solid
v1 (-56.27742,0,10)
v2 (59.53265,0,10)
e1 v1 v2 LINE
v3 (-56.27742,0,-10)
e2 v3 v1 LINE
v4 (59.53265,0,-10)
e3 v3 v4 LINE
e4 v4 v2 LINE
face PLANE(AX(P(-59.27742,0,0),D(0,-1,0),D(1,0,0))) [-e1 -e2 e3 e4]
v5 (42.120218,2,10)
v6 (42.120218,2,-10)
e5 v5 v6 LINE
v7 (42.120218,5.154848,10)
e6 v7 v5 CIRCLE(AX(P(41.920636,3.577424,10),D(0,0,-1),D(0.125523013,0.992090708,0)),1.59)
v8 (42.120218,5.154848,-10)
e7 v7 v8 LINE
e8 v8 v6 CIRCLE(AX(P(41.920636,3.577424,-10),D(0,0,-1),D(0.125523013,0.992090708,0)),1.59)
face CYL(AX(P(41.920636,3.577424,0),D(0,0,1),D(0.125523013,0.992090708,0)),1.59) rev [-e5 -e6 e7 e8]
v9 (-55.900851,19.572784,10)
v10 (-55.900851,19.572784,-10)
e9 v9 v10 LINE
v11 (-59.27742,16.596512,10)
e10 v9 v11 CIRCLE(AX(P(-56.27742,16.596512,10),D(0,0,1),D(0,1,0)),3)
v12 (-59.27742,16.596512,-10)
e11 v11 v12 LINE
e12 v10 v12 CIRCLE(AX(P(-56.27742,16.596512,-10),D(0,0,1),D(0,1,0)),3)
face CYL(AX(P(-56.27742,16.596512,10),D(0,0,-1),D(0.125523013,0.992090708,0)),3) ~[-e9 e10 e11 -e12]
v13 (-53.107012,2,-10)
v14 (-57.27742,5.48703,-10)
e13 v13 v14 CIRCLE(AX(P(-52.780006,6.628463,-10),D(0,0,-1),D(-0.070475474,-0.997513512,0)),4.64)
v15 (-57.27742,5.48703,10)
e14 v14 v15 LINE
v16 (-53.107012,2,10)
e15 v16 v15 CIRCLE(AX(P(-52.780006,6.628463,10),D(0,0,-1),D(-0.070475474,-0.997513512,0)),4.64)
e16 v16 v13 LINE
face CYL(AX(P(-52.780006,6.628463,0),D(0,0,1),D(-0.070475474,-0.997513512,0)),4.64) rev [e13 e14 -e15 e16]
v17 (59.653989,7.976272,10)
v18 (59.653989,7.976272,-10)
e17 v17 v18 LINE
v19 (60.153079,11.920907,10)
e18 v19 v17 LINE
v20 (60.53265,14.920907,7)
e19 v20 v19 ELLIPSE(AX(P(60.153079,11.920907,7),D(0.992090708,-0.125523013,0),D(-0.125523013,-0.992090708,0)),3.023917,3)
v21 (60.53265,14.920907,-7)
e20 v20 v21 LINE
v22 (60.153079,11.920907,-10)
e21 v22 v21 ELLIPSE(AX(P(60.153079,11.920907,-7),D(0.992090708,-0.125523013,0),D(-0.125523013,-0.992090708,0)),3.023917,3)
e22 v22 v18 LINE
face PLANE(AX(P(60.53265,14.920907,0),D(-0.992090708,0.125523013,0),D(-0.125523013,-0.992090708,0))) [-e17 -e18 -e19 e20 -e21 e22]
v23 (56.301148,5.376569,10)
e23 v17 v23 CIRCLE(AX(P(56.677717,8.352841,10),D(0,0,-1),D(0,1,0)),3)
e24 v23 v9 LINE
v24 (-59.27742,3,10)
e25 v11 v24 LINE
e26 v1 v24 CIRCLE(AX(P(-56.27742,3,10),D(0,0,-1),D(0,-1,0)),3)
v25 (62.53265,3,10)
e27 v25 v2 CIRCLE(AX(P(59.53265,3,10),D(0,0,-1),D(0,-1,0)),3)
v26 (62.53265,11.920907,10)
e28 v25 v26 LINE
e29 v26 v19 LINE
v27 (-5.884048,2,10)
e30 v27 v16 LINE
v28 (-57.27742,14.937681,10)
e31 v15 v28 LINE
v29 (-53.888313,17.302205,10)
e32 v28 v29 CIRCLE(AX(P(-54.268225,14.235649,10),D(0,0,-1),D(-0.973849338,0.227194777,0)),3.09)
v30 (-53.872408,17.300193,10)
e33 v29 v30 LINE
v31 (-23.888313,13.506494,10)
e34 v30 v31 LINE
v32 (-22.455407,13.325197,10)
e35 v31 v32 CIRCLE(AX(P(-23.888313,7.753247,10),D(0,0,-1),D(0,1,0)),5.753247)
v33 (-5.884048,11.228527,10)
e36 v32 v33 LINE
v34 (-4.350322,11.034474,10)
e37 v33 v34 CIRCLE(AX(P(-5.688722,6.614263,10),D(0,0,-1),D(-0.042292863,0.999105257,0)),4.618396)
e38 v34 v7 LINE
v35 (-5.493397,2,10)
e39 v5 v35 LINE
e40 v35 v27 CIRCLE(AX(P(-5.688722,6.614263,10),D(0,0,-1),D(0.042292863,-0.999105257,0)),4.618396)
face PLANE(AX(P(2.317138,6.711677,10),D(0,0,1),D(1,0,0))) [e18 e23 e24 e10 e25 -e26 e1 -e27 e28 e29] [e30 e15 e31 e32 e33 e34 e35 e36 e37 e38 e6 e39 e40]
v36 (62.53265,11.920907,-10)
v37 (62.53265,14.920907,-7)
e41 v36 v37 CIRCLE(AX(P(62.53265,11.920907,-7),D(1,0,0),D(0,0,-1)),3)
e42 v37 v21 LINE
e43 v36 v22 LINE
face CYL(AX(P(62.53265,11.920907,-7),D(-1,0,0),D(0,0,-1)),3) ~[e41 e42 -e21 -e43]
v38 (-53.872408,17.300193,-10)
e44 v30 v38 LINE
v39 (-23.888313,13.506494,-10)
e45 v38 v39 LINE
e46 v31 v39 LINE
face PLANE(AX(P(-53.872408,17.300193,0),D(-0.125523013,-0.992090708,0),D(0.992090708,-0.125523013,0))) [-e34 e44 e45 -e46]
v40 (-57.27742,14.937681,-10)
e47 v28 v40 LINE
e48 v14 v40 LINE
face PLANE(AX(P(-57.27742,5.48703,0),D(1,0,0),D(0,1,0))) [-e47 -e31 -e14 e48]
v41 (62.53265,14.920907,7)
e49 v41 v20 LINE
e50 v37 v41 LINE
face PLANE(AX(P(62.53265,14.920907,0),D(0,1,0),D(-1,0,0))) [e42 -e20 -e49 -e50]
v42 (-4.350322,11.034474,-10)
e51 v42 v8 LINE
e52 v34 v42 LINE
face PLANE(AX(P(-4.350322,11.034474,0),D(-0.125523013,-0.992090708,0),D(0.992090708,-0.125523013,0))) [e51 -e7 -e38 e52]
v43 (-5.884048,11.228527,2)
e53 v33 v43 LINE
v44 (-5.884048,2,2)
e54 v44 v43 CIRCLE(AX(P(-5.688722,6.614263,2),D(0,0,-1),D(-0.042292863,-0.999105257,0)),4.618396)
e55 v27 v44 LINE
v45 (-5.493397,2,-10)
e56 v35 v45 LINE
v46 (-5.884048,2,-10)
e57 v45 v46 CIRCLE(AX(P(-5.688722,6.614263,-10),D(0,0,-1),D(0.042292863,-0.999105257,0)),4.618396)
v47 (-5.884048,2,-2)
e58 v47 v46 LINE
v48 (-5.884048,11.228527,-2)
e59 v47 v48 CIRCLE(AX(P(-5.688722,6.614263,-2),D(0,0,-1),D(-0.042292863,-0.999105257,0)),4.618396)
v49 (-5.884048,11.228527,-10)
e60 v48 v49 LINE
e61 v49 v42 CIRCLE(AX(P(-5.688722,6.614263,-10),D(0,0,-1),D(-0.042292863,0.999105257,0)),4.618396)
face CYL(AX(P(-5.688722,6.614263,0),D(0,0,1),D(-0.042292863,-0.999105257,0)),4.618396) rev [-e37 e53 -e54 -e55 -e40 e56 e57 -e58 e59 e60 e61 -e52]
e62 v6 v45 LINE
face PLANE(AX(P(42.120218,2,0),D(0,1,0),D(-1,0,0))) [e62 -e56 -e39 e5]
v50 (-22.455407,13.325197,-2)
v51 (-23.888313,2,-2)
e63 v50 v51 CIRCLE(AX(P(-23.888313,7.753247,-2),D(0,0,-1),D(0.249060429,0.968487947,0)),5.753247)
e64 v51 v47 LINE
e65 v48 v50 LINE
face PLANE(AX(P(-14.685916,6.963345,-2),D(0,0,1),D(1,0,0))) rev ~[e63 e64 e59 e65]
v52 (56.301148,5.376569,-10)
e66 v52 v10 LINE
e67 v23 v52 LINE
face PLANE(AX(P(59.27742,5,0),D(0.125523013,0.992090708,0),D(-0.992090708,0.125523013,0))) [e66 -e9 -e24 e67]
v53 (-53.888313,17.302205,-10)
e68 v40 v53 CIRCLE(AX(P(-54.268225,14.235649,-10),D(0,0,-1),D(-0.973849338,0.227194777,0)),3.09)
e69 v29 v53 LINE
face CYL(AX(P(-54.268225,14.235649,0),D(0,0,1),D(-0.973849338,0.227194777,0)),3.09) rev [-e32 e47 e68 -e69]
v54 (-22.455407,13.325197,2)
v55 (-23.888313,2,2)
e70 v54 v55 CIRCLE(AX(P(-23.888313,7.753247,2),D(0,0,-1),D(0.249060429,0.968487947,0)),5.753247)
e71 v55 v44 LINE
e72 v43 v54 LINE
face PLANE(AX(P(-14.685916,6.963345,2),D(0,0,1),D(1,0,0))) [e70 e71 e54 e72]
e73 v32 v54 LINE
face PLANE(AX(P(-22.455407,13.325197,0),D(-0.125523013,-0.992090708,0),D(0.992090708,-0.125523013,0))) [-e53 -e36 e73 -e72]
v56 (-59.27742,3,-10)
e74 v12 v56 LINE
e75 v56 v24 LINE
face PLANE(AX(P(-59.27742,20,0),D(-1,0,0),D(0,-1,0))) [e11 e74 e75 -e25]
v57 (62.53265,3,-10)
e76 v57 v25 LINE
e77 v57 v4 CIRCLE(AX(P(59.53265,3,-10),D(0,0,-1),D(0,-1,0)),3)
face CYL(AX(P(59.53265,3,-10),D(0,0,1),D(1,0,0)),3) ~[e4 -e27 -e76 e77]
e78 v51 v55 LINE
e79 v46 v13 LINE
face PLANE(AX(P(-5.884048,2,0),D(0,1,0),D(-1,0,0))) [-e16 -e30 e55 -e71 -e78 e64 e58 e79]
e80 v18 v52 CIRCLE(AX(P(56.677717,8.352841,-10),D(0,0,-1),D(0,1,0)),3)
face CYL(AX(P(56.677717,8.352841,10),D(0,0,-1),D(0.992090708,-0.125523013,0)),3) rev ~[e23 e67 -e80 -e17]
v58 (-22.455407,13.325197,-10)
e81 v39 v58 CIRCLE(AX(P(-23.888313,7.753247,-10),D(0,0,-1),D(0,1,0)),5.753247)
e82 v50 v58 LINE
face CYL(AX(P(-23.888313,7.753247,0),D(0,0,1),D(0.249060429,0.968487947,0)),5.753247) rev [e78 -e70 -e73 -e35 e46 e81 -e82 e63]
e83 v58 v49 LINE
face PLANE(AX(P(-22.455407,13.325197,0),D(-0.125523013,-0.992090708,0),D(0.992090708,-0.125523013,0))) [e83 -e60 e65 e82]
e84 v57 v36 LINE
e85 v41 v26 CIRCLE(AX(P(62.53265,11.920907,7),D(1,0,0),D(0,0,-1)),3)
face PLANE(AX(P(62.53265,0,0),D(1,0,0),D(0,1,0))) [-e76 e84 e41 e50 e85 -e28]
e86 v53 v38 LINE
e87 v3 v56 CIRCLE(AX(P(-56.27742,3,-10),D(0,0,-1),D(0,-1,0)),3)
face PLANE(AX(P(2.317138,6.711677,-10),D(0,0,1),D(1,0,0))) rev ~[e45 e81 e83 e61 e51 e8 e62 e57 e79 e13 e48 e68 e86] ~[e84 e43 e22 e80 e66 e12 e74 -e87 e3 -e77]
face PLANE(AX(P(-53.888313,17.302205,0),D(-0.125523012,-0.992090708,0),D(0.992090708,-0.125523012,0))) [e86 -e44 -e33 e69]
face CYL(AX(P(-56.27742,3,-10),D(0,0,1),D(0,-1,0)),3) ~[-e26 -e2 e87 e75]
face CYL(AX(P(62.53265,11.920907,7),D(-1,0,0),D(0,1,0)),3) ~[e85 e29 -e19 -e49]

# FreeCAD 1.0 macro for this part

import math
import FreeCAD as App
import Part
import Sketcher


def edges_at(feature, points):
    """Names of the edges that pass closest to the given points."""
    edges = feature.Shape.Edges
    near = lambda p: min(range(len(edges)), key=lambda i: edges[i].distToShape(Part.Vertex(*p))[0])
    return sorted({f"Edge{near(p) + 1}" for p in points})


def add_polygon(sketch, points):
    """Adds a closed chain of lines whose ends are joined by coincident constraints."""
    first, n = sketch.GeometryCount, len(points)
    for a, b in zip(points, points[1:] + points[:1]):
        sketch.addGeometry(Part.LineSegment(App.Vector(*a, 0), App.Vector(*b, 0)), False)
    for i in range(n):
        sketch.addConstraint(Sketcher.Constraint("Coincident", first + i, 2, first + (i + 1) % n, 1))

doc = App.newDocument("Part")
body = doc.addObject("PartDesign::Body", "Body")

# Sketch on XY plane
sketch1 = body.newObject("Sketcher::SketchObject", "Sketch")
sketch1.AttachmentSupport = (doc.getObject("XY_Plane"), [""])
sketch1.MapMode = "FlatFace"
add_polygon(sketch1, [(-59.277, 20), (-59.277, 0), (62.533, 0), (62.533, 14.921), (60.533, 14.921), (59.277, 5)])  # lines 0-5
sketch1.addGeometry(Part.ArcOfCircle(Part.Circle(App.Vector(-52.78, 6.628, 0), App.Vector(0, 0, 1), 4.64), math.radians(-166), math.radians(-94)), False)  # 6
sketch1.addGeometry(Part.LineSegment(App.Vector(-57.277, 5.487, 0), App.Vector(-57.277, 14.938, 0)), False)  # 7
sketch1.addGeometry(Part.ArcOfCircle(Part.Circle(App.Vector(-54.268, 14.236, 0), App.Vector(0, 0, 1), 3.09), math.radians(83), math.radians(167)), False)  # 8
sketch1.addGeometry(Part.LineSegment(App.Vector(-53.888, 17.302, 0), App.Vector(-53.872, 17.3, 0)), False)  # 9
sketch1.addGeometry(Part.LineSegment(App.Vector(-53.872, 17.3, 0), App.Vector(-23.888, 13.506, 0)), False)  # 10
sketch1.addGeometry(Part.ArcOfCircle(Part.Circle(App.Vector(-23.888, 7.753, 0), App.Vector(0, 0, 1), 5.753), math.radians(75.58), math.radians(90)), False)  # 11
sketch1.addGeometry(Part.LineSegment(App.Vector(-22.455, 13.325, 0), App.Vector(-5.884, 11.229, 0)), False)  # 12
sketch1.addGeometry(Part.ArcOfCircle(Part.Circle(App.Vector(-5.689, 6.614, 0), App.Vector(0, 0, 1), 4.618), math.radians(73.15), math.radians(92.42)), False)  # 13
sketch1.addGeometry(Part.LineSegment(App.Vector(-4.35, 11.034, 0), App.Vector(42.12, 5.155, 0)), False)  # 14
sketch1.addGeometry(Part.ArcOfCircle(Part.Circle(App.Vector(41.921, 3.577, 0), App.Vector(0, 0, 1), 1.59), math.radians(-83), math.radians(83)), False)  # 15
sketch1.addGeometry(Part.LineSegment(App.Vector(42.12, 2, 0), App.Vector(-5.493, 2, 0)), False)  # 16
sketch1.addGeometry(Part.ArcOfCircle(Part.Circle(App.Vector(-5.689, 6.614, 0), App.Vector(0, 0, 1), 4.618), math.radians(-92.42), math.radians(-87.58)), False)  # 17
sketch1.addGeometry(Part.LineSegment(App.Vector(-5.884, 2, 0), App.Vector(-53.107, 2, 0)), False)  # 18
sketch1.addConstraint([
    Sketcher.Constraint("Coincident", 6, 1, 7, 1),
    Sketcher.Constraint("Coincident", 7, 2, 8, 2),
    Sketcher.Constraint("Coincident", 8, 1, 9, 1),
    Sketcher.Constraint("Coincident", 9, 2, 10, 1),
    Sketcher.Constraint("Coincident", 10, 2, 11, 2),
    Sketcher.Constraint("Coincident", 11, 1, 12, 1),
    Sketcher.Constraint("Coincident", 12, 2, 13, 2),
    Sketcher.Constraint("Coincident", 13, 1, 14, 1),
    Sketcher.Constraint("Tangent", 14, 2, 15, 2),
    Sketcher.Constraint("Coincident", 15, 1, 16, 1),
    Sketcher.Constraint("Coincident", 16, 2, 17, 2),
    Sketcher.Constraint("Coincident", 17, 1, 18, 1),
    Sketcher.Constraint("Coincident", 18, 2, 6, 2),
    Sketcher.Constraint("Vertical", 0),
    Sketcher.Constraint("Horizontal", 1),
    Sketcher.Constraint("Vertical", 2),
    Sketcher.Constraint("Horizontal", 3),
    Sketcher.Constraint("Vertical", 7),
    Sketcher.Constraint("Horizontal", 16),
    Sketcher.Constraint("Horizontal", 18),
    Sketcher.Constraint("Coincident", 17, 3, 13, 3),
    Sketcher.Constraint("Equal", 13, 17),
    Sketcher.Constraint("PointOnObject", 0, 2, -1),
    Sketcher.Constraint("Perpendicular", 4, 5),
    Sketcher.Constraint("Parallel", 5, 9),
    Sketcher.Constraint("Parallel", 5, 10),
    Sketcher.Constraint("Parallel", 10, 12),
    Sketcher.Constraint("Parallel", 12, 14),
    Sketcher.Constraint("Horizontal", 16, 2, 17, 1),
    Sketcher.Constraint("Vertical", 11, 3, 10, 2),
    Sketcher.Constraint("Vertical", 14, 2, 15, 1),
    Sketcher.Constraint("Vertical", 12, 2, 17, 1),
    Sketcher.Constraint("DistanceX", 3, 2, 3, 1, 2.0),
    Sketcher.Constraint("DistanceY", 0, 2, 0, 1, 20.0),
    Sketcher.Constraint("Radius", 6, 4.64),
    Sketcher.Constraint("Radius", 8, 3.09),
    Sketcher.Constraint("Radius", 15, 1.59),
    Sketcher.Constraint("Distance", 4, 10.0),
    Sketcher.Constraint("DistanceY", -1, 1, 4, 2, 5.0),
    Sketcher.Constraint("DistanceY", -1, 1, 15, 1, 2.0),
    Sketcher.Constraint("DistanceX", 0, 2, 6, 1, 2.0),
    Sketcher.Constraint("Distance", 5, 119.5),
    Sketcher.Constraint("Radius", 11, 5.753247),
    Sketcher.Constraint("Radius", 13, 4.618396),
    Sketcher.Constraint("DistanceY", 7, 1, 7, 2, 9.450651),
    Sketcher.Constraint("DistanceY", 13, 3, 6, 3, 0.014199),
    Sketcher.Constraint("DistanceY", 10, 2, 9, 2, 3.793699),
    Sketcher.Constraint("DistanceX", 6, 3, 11, 1, 30.324599),
    Sketcher.Constraint("DistanceX", 17, 3, 13, 1, 1.338401),
    Sketcher.Constraint("Distance", 9, 0.016031),
    Sketcher.Constraint("Distance", 12, 16.703472),
    Sketcher.Constraint("Distance", 14, 46.841019),
    Sketcher.Constraint("DistanceY", -1, 1, 8, 3, 14.235649),
    Sketcher.Constraint("DistanceX", 0, 2, -1, 1, 59.27742),
    Sketcher.Constraint("DistanceY", -1, 1, 6, 1, 5.48703),
])
pad1 = body.newObject("PartDesign::Pad", "Pad")
pad1.Profile = sketch1
pad1.Type = "TwoLengths"
pad1.Length = 10
pad1.Length2 = 10

# Sketch on XY plane
sketch2 = body.newObject("Sketcher::SketchObject", "Sketch001")
sketch2.AttachmentSupport = (doc.getObject("XY_Plane"), [""])
sketch2.MapMode = "FlatFace"
sketch2.addGeometry([
    Part.ArcOfCircle(Part.Circle(App.Vector(-23.9, 7.8, 0), App.Vector(0, 0, 1), 5.8), math.radians(-90), math.radians(76)),
    Part.LineSegment(App.Vector(-23.9, 2, 0), App.Vector(-5.9, 2, 0)),
    Part.ArcOfCircle(Part.Circle(App.Vector(-5.7, 6.6, 0), App.Vector(0, 0, 1), 4.6), math.radians(92), math.radians(268)),
    Part.LineSegment(App.Vector(-5.9, 11.2, 0), App.Vector(-22.5, 13.3, 0)),
], False)
sketch2.addConstraint([
    Sketcher.Constraint("Tangent", 0, 1, 1, 1),
    Sketcher.Constraint("Coincident", 1, 2, 2, 2),
    Sketcher.Constraint("Coincident", 2, 1, 3, 1),
    Sketcher.Constraint("Coincident", 3, 2, 0, 2),
    Sketcher.Constraint("Horizontal", 1),
    Sketcher.Constraint("Vertical", 1, 2, 2, 1),
    Sketcher.Constraint("DistanceY", -1, 1, 0, 1, 2.0),
    Sketcher.Constraint("Radius", 0, 5.753247),
    Sketcher.Constraint("Radius", 2, 4.618396),
    Sketcher.Constraint("Distance", 3, 16.703472),
    Sketcher.Constraint("DistanceX", 1, 1, 1, 2, 18.004265),
    Sketcher.Constraint("DistanceX", 0, 3, 2, 3, 18.19959),
    Sketcher.Constraint("DistanceX", 0, 3, -1, 1, 23.888313),
])
pad2 = body.newObject("PartDesign::Pad", "Pad001")
pad2.Profile = sketch2
pad2.Type = "TwoLengths"
pad2.Length = 2
pad2.Length2 = 2
doc.recompute()

fillet = body.newObject("PartDesign::Fillet", "Fillet")
fillet.Base = (pad2, edges_at(pad2, [
    (62.533, 0, 0),
    (-59.277, 0, 0),
    (-59.277, 20, 0),
    (59.277, 5, 0),
    (61.533, 14.921, -10),
    (61.533, 14.921, 10),
]))
fillet.Radius = 3

doc.recompute()
